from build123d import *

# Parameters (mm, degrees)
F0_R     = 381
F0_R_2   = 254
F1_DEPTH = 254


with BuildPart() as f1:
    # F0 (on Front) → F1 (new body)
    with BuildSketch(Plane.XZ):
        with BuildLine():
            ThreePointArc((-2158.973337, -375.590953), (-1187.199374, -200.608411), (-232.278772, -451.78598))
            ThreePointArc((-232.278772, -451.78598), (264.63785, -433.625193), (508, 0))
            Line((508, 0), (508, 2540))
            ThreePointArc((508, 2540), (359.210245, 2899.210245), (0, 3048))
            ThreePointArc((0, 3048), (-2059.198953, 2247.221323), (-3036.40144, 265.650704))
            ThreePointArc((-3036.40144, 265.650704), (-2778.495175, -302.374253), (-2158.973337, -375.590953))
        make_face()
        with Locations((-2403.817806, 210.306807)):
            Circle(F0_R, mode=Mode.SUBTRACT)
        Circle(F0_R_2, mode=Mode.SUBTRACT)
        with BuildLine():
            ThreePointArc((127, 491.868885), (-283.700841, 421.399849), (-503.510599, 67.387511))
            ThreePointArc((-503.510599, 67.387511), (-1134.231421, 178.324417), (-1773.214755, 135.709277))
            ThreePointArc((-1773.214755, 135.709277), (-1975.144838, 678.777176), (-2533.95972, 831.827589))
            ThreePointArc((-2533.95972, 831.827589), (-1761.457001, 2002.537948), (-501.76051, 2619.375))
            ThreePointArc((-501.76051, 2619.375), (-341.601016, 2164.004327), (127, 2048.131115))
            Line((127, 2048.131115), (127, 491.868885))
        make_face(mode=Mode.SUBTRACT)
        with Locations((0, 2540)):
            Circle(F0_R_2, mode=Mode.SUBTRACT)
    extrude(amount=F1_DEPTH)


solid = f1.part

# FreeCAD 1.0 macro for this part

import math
import FreeCAD as App
import Part
import Sketcher
Q = App.Units.Quantity

doc = App.newDocument("Part")
body = doc.addObject("PartDesign::Body", "Body")

sketch1 = body.newObject("Sketcher::SketchObject", "Sketch")
sketch1.AttachmentSupport = (doc.getObject("XZ_Plane"), [""])
sketch1.MapMode = "FlatFace"
sketch1.addGeometry([
    Part.ArcOfCircle(Part.Circle(App.Vector(-1278, -2485, 0), App.Vector(0, 0, 1), 2286), math.radians(63), math.radians(113)),
    Part.ArcOfCircle(Part.Circle(App.Vector(0, 0, 0), App.Vector(0, 0, 1), 508), math.radians(-117), math.radians(0)),
    Part.LineSegment(App.Vector(508, 0, 0), App.Vector(508, 2540, 0)),
    Part.ArcOfCircle(Part.Circle(App.Vector(0, 2540, 0), App.Vector(0, 0, 1), 508), math.radians(0), math.radians(90)),
    Part.ArcOfCircle(Part.Circle(App.Vector(0, 0, 0), App.Vector(0, 0, 1), 3048), math.radians(90), math.radians(175)),
    Part.ArcOfCircle(Part.Circle(App.Vector(-2404, 210, 0), App.Vector(0, 0, 1), 635), math.radians(175), math.radians(293)),
    Part.Circle(App.Vector(-2404, 210, 0), App.Vector(0, 0, 1), 381),
    Part.Circle(App.Vector(0, 0, 0), App.Vector(0, 0, 1), 254),
    Part.LineSegment(App.Vector(127, 2048, 0), App.Vector(127, 492, 0)),
    Part.ArcOfCircle(Part.Circle(App.Vector(0, 0, 0), App.Vector(0, 0, 1), 508), math.radians(76), math.radians(172)),
    Part.ArcOfCircle(Part.Circle(App.Vector(-1278, -2485, 0), App.Vector(0, 0, 1), 2667), math.radians(73), math.radians(101)),
    Part.ArcOfCircle(Part.Circle(App.Vector(-2404, 210, 0), App.Vector(0, 0, 1), 635), math.radians(-7), math.radians(102)),
    Part.ArcOfCircle(Part.Circle(App.Vector(0, 0, 0), App.Vector(0, 0, 1), 2667), math.radians(101), math.radians(162)),
    Part.ArcOfCircle(Part.Circle(App.Vector(0, 2540, 0), App.Vector(0, 0, 1), 508), math.radians(171), math.radians(284)),
    Part.Circle(App.Vector(0, 2540, 0), App.Vector(0, 0, 1), 254),
], False)
sketch1.addConstraint([
    Sketcher.Constraint("Tangent", 0, 1, 1, 1),
    Sketcher.Constraint("Tangent", 1, 2, 2, 1),
    Sketcher.Constraint("Tangent", 2, 2, 3, 1),
    Sketcher.Constraint("Tangent", 3, 2, 4, 1),
    Sketcher.Constraint("Tangent", 4, 2, 5, 1),
    Sketcher.Constraint("Tangent", 5, 2, 0, 2),
    Sketcher.Constraint("Coincident", 8, 2, 9, 1),
    Sketcher.Constraint("Coincident", 9, 2, 10, 1),
    Sketcher.Constraint("Coincident", 10, 2, 11, 1),
    Sketcher.Constraint("Coincident", 11, 2, 12, 2),
    Sketcher.Constraint("Coincident", 12, 1, 13, 1),
    Sketcher.Constraint("Coincident", 13, 2, 8, 1),
    Sketcher.Constraint("Vertical", 2),
    Sketcher.Constraint("Vertical", 8),
    Sketcher.Constraint("Coincident", 1, 3, -1, 1),
    Sketcher.Constraint("Coincident", 4, 3, -1, 1),
    Sketcher.Constraint("Coincident", 7, 3, -1, 1),
    Sketcher.Constraint("Coincident", 9, 3, -1, 1),
    Sketcher.Constraint("Coincident", 12, 3, -1, 1),
    Sketcher.Constraint("Coincident", 6, 3, 5, 3),
    Sketcher.Constraint("Coincident", 10, 3, 0, 3),
    Sketcher.Constraint("Coincident", 11, 3, 5, 3),
    Sketcher.Constraint("Coincident", 13, 3, 3, 3),
    Sketcher.Constraint("Coincident", 14, 3, 3, 3),
    Sketcher.Constraint("Equal", 1, 3),
    Sketcher.Constraint("Equal", 3, 9),
    Sketcher.Constraint("Equal", 5, 11),
    Sketcher.Constraint("Equal", 9, 13),
    Sketcher.Constraint("Equal", 7, 14),
    Sketcher.Constraint("Diameter", 6, Q("30 in")),
    Sketcher.Constraint("Diameter", 7, Q("20 in")),
    Sketcher.Constraint("Radius", 0, Q("90 in")),
    Sketcher.Constraint("Radius", 1, Q("20 in")),
    Sketcher.Constraint("Radius", 4, Q("120 in")),
    Sketcher.Constraint("Radius", 5, Q("25 in")),
    Sketcher.Constraint("Radius", 10, Q("105.0000002 in")),
    Sketcher.Constraint("Radius", 12, Q("105 in")),
    Sketcher.Constraint("DistanceX", -1, 1, 8, 2, Q("5 in")),
    Sketcher.Constraint("DistanceY", 0, 3, 5, 3, 2695.1297),
])
pad1 = body.newObject("PartDesign::Pad", "Pad")
pad1.Profile = sketch1
pad1.Length = Q("10 in")

doc.recompute()
